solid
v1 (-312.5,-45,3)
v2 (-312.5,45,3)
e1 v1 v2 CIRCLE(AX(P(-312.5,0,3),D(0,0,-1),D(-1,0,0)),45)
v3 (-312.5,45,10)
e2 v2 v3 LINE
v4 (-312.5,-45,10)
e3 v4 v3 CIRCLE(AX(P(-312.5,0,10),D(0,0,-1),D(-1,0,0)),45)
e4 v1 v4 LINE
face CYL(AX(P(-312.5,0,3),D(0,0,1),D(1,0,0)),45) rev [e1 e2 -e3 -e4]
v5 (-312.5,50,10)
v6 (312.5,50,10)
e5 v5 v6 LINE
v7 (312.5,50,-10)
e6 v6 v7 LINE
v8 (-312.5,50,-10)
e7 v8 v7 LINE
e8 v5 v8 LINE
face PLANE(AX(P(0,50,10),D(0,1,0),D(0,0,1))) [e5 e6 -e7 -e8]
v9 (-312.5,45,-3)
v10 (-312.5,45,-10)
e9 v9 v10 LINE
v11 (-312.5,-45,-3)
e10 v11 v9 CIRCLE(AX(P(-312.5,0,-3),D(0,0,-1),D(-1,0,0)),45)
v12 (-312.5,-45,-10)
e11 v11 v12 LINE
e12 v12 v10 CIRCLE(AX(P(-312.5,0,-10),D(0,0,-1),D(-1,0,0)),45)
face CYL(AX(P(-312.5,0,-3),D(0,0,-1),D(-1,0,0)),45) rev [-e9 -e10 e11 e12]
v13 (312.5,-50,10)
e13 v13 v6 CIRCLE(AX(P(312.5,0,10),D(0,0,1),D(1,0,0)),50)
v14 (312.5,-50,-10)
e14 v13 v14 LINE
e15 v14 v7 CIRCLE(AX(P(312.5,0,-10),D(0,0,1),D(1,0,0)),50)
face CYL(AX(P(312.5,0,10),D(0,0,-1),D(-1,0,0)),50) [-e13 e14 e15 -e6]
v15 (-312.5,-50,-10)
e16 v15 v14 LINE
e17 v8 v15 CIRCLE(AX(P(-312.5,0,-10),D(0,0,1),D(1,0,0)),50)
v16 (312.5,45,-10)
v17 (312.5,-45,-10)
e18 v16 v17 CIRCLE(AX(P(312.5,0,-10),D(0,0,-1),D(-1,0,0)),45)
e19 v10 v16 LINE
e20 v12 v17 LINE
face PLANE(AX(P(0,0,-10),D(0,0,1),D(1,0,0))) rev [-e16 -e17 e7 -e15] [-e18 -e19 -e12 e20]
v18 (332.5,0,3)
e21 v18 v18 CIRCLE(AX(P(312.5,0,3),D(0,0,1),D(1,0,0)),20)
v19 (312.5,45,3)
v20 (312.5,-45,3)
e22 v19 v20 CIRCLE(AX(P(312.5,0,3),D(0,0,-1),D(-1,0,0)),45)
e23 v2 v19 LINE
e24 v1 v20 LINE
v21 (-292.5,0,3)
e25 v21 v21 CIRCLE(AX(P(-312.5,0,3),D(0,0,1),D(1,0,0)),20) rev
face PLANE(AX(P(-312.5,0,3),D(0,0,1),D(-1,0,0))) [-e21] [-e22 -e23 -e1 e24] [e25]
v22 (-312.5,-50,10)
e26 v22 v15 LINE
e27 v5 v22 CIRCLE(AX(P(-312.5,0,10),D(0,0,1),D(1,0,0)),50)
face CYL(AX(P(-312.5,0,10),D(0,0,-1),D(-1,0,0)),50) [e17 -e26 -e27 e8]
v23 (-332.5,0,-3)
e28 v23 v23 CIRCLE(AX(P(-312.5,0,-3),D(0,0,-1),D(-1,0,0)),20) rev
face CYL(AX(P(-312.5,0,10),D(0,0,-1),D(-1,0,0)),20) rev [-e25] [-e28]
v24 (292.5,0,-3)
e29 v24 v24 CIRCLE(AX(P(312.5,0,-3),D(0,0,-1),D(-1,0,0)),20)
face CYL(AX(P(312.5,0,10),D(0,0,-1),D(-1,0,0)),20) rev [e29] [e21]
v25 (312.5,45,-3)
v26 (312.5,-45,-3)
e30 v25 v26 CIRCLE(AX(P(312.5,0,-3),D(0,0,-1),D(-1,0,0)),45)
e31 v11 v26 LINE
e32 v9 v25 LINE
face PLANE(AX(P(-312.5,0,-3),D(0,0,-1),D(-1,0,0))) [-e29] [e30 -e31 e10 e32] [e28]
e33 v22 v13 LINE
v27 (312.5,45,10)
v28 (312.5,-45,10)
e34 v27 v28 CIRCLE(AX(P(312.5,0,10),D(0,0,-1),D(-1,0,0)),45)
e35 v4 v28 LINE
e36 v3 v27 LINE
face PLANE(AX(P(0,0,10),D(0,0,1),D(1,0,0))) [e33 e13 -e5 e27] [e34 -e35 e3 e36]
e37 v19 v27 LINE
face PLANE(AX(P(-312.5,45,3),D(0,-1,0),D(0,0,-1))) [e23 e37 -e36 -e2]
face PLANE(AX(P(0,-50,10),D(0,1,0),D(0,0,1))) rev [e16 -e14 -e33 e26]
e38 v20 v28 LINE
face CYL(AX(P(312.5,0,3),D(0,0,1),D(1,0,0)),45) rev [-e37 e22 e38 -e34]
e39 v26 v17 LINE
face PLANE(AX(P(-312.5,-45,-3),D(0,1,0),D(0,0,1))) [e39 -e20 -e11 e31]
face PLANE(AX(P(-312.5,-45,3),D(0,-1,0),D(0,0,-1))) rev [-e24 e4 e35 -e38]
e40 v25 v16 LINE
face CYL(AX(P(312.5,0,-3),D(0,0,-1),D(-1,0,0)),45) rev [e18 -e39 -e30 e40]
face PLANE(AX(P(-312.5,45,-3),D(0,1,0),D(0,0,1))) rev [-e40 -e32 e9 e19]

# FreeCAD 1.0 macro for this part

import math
import FreeCAD as App
import Part
import Sketcher

doc = App.newDocument("Part")
body = doc.addObject("PartDesign::Body", "Body")

sketch1 = body.newObject("Sketcher::SketchObject", "Sketch")
sketch1.AttachmentSupport = (doc.getObject("XY_Plane"), [""])
sketch1.MapMode = "FlatFace"
sketch1.addGeometry(Part.LineSegment(App.Vector(-312, -50, 0), App.Vector(312, -50, 0)), False)
sketch1.addGeometry(Part.ArcOfCircle(Part.Circle(App.Vector(312, 0, 0), App.Vector(0, 0, 1), 50), math.radians(-90), math.radians(90)), False)
sketch1.addGeometry(Part.LineSegment(App.Vector(312, 50, 0), App.Vector(-312, 50, 0)), False)
sketch1.addGeometry(Part.ArcOfCircle(Part.Circle(App.Vector(-312, 0, 0), App.Vector(0, 0, 1), 50), math.radians(90), math.radians(270)), False)
sketch1.addGeometry(Part.Circle(App.Vector(-312, 0, 0), App.Vector(0, 0, 1), 20), False)
sketch1.addGeometry(Part.Circle(App.Vector(312, 0, 0), App.Vector(0, 0, 1), 20), False)
sketch1.addConstraint(Sketcher.Constraint("Tangent", 0, 2, 1, 1))
sketch1.addConstraint(Sketcher.Constraint("Tangent", 1, 2, 2, 1))
sketch1.addConstraint(Sketcher.Constraint("Tangent", 2, 2, 3, 1))
sketch1.addConstraint(Sketcher.Constraint("Tangent", 3, 2, 0, 1))
sketch1.addConstraint(Sketcher.Constraint("Horizontal", 0))
sketch1.addConstraint(Sketcher.Constraint("Horizontal", 2))
sketch1.addConstraint(Sketcher.Constraint("Coincident", 4, 3, 3, 3))
sketch1.addConstraint(Sketcher.Constraint("Coincident", 5, 3, 1, 3))
sketch1.addConstraint(Sketcher.Constraint("Equal", 4, 5))
sketch1.addConstraint(Sketcher.Constraint("Symmetric", 1, 3, 3, 3, -1, 1))
sketch1.addConstraint(Sketcher.Constraint("Diameter", 4, 40.0))
sketch1.addConstraint(Sketcher.Constraint("Radius", 1, 50.0))
sketch1.addConstraint(Sketcher.Constraint("DistanceX", 0, 1, 0, 2, 625.0))
pad1 = body.newObject("PartDesign::Pad", "Pad")
pad1.Profile = sketch1
pad1.Length = 20
pad1.Midplane = True

sketch2 = body.newObject("Sketcher::SketchObject", "Sketch001")
sketch2.AttachmentSupport = (doc.getObject("XY_Plane"), [""])
sketch2.MapMode = "FlatFace"
sketch2.AttachmentOffset = App.Placement(App.Vector(0, 0, -10), App.Rotation())
sketch2.addGeometry(Part.LineSegment(App.Vector(-312, 45, 0), App.Vector(312, 45, 0)), False)
sketch2.addGeometry(Part.ArcOfCircle(Part.Circle(App.Vector(312, 0, 0), App.Vector(0, 0, 1), 45), math.radians(-90), math.radians(90)), False)
sketch2.addGeometry(Part.LineSegment(App.Vector(312, -45, 0), App.Vector(-312, -45, 0)), False)
sketch2.addGeometry(Part.ArcOfCircle(Part.Circle(App.Vector(-312, 0, 0), App.Vector(0, 0, 1), 45), math.radians(90), math.radians(270)), False)
sketch2.addConstraint(Sketcher.Constraint("Tangent", 0, 2, 1, 2))
sketch2.addConstraint(Sketcher.Constraint("Tangent", 1, 1, 2, 1))
sketch2.addConstraint(Sketcher.Constraint("Tangent", 2, 2, 3, 2))
sketch2.addConstraint(Sketcher.Constraint("Tangent", 3, 1, 0, 1))
sketch2.addConstraint(Sketcher.Constraint("Horizontal", 0))
sketch2.addConstraint(Sketcher.Constraint("Horizontal", 2))
sketch2.addConstraint(Sketcher.Constraint("Symmetric", 1, 3, 3, 3, -1, 1))
sketch2.addConstraint(Sketcher.Constraint("Radius", 1, 45.0))
sketch2.addConstraint(Sketcher.Constraint("DistanceX", 0, 1, 0, 2, 625.0))
pocket1 = body.newObject("PartDesign::Pocket", "Pocket")
pocket1.Profile = sketch2
pocket1.Length = 7
pocket1.Reversed = True
doc.recompute()

mirrored = body.newObject("PartDesign::Mirrored", "Mirrored")
mirrored.Originals = [pocket1]
mirrored.MirrorPlane = (doc.getObject("XY_Plane"), [""])
body.Tip = mirrored

doc.recompute()
